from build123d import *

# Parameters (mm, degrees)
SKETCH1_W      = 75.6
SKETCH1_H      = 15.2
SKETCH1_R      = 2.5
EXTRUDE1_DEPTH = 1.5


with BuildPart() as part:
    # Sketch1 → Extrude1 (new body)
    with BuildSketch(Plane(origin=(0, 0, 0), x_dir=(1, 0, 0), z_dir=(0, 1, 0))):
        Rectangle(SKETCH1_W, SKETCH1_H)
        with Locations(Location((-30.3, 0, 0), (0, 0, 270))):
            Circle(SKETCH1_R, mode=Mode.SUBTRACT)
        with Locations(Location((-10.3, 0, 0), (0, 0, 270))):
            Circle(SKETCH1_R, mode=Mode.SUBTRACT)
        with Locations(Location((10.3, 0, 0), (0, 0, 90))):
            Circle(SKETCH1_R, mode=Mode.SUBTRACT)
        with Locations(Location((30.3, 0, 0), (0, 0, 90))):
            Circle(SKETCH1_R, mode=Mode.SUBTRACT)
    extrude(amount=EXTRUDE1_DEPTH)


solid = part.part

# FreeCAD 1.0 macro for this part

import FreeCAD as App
import Part
import Sketcher

V = App.Vector

doc = App.newDocument("Part")
body = doc.addObject("PartDesign::Body", "Body")

# Sketch on XZ plane
sketch1 = body.newObject("Sketcher::SketchObject", "Sketch")
sketch1.AttachmentSupport = (doc.getObject("XZ_Plane"), [""])
sketch1.MapMode = "FlatFace"
sketch1.addGeometry(Part.LineSegment(V(-37.8, -7.6, 0), V(-37.8, 7.6, 0)), False)
sketch1.addGeometry(Part.LineSegment(V(-37.8, 7.6, 0), V(37.8, 7.6, 0)), False)
sketch1.addGeometry(Part.LineSegment(V(37.8, 7.6, 0), V(37.8, -7.6, 0)), False)
sketch1.addGeometry(Part.LineSegment(V(37.8, -7.6, 0), V(-37.8, -7.6, 0)), False)
sketch1.addGeometry(Part.Circle(V(-30.3, 0, 0), V(0, 0, 1), 2.5), False)
sketch1.addGeometry(Part.Circle(V(-10.3, 0, 0), V(0, 0, 1), 2.5), False)
sketch1.addGeometry(Part.Circle(V(10.3, 0, 0), V(0, 0, 1), 2.5), False)
sketch1.addGeometry(Part.Circle(V(30.3, 0, 0), V(0, 0, 1), 2.5), False)
sketch1.addConstraint(Sketcher.Constraint("Coincident", 0, 2, 1, 1))
sketch1.addConstraint(Sketcher.Constraint("Coincident", 1, 2, 2, 1))
sketch1.addConstraint(Sketcher.Constraint("Coincident", 2, 2, 3, 1))
sketch1.addConstraint(Sketcher.Constraint("Coincident", 3, 2, 0, 1))
sketch1.addConstraint(Sketcher.Constraint("Vertical", 0))
sketch1.addConstraint(Sketcher.Constraint("Horizontal", 1))
sketch1.addConstraint(Sketcher.Constraint("Vertical", 2))
sketch1.addConstraint(Sketcher.Constraint("Horizontal", 3))
sketch1.addConstraint(Sketcher.Constraint("Equal", 4, 5))
sketch1.addConstraint(Sketcher.Constraint("Equal", 5, 6))
sketch1.addConstraint(Sketcher.Constraint("Equal", 6, 7))
sketch1.addConstraint(Sketcher.Constraint("Symmetric", 5, 3, 6, 3, -1, 1))
sketch1.addConstraint(Sketcher.Constraint("Symmetric", 4, 3, 7, 3, -1, 1))
sketch1.addConstraint(Sketcher.Constraint("Symmetric", 0, 2, 2, 2, -1, 1))
sketch1.addConstraint(Sketcher.Constraint("PointOnObject", 4, 3, -1))
sketch1.addConstraint(Sketcher.Constraint("PointOnObject", 5, 3, -1))
sketch1.addConstraint(Sketcher.Constraint("Diameter", 4, 5.0))
sketch1.addConstraint(Sketcher.Constraint("DistanceX", 1, 1, 1, 2, 75.6))
sketch1.addConstraint(Sketcher.Constraint("DistanceY", 0, 1, 0, 2, 15.2))
sketch1.addConstraint(Sketcher.Constraint("DistanceX", 4, 3, 5, 3, 20.0))
sketch1.addConstraint(Sketcher.Constraint("DistanceX", 4, 3, -1, 1, 30.3))
pad1 = body.newObject("PartDesign::Pad", "Pad")
pad1.Profile = sketch1
pad1.Length = 1.5
pad1.Reversed = True

doc.recompute()
